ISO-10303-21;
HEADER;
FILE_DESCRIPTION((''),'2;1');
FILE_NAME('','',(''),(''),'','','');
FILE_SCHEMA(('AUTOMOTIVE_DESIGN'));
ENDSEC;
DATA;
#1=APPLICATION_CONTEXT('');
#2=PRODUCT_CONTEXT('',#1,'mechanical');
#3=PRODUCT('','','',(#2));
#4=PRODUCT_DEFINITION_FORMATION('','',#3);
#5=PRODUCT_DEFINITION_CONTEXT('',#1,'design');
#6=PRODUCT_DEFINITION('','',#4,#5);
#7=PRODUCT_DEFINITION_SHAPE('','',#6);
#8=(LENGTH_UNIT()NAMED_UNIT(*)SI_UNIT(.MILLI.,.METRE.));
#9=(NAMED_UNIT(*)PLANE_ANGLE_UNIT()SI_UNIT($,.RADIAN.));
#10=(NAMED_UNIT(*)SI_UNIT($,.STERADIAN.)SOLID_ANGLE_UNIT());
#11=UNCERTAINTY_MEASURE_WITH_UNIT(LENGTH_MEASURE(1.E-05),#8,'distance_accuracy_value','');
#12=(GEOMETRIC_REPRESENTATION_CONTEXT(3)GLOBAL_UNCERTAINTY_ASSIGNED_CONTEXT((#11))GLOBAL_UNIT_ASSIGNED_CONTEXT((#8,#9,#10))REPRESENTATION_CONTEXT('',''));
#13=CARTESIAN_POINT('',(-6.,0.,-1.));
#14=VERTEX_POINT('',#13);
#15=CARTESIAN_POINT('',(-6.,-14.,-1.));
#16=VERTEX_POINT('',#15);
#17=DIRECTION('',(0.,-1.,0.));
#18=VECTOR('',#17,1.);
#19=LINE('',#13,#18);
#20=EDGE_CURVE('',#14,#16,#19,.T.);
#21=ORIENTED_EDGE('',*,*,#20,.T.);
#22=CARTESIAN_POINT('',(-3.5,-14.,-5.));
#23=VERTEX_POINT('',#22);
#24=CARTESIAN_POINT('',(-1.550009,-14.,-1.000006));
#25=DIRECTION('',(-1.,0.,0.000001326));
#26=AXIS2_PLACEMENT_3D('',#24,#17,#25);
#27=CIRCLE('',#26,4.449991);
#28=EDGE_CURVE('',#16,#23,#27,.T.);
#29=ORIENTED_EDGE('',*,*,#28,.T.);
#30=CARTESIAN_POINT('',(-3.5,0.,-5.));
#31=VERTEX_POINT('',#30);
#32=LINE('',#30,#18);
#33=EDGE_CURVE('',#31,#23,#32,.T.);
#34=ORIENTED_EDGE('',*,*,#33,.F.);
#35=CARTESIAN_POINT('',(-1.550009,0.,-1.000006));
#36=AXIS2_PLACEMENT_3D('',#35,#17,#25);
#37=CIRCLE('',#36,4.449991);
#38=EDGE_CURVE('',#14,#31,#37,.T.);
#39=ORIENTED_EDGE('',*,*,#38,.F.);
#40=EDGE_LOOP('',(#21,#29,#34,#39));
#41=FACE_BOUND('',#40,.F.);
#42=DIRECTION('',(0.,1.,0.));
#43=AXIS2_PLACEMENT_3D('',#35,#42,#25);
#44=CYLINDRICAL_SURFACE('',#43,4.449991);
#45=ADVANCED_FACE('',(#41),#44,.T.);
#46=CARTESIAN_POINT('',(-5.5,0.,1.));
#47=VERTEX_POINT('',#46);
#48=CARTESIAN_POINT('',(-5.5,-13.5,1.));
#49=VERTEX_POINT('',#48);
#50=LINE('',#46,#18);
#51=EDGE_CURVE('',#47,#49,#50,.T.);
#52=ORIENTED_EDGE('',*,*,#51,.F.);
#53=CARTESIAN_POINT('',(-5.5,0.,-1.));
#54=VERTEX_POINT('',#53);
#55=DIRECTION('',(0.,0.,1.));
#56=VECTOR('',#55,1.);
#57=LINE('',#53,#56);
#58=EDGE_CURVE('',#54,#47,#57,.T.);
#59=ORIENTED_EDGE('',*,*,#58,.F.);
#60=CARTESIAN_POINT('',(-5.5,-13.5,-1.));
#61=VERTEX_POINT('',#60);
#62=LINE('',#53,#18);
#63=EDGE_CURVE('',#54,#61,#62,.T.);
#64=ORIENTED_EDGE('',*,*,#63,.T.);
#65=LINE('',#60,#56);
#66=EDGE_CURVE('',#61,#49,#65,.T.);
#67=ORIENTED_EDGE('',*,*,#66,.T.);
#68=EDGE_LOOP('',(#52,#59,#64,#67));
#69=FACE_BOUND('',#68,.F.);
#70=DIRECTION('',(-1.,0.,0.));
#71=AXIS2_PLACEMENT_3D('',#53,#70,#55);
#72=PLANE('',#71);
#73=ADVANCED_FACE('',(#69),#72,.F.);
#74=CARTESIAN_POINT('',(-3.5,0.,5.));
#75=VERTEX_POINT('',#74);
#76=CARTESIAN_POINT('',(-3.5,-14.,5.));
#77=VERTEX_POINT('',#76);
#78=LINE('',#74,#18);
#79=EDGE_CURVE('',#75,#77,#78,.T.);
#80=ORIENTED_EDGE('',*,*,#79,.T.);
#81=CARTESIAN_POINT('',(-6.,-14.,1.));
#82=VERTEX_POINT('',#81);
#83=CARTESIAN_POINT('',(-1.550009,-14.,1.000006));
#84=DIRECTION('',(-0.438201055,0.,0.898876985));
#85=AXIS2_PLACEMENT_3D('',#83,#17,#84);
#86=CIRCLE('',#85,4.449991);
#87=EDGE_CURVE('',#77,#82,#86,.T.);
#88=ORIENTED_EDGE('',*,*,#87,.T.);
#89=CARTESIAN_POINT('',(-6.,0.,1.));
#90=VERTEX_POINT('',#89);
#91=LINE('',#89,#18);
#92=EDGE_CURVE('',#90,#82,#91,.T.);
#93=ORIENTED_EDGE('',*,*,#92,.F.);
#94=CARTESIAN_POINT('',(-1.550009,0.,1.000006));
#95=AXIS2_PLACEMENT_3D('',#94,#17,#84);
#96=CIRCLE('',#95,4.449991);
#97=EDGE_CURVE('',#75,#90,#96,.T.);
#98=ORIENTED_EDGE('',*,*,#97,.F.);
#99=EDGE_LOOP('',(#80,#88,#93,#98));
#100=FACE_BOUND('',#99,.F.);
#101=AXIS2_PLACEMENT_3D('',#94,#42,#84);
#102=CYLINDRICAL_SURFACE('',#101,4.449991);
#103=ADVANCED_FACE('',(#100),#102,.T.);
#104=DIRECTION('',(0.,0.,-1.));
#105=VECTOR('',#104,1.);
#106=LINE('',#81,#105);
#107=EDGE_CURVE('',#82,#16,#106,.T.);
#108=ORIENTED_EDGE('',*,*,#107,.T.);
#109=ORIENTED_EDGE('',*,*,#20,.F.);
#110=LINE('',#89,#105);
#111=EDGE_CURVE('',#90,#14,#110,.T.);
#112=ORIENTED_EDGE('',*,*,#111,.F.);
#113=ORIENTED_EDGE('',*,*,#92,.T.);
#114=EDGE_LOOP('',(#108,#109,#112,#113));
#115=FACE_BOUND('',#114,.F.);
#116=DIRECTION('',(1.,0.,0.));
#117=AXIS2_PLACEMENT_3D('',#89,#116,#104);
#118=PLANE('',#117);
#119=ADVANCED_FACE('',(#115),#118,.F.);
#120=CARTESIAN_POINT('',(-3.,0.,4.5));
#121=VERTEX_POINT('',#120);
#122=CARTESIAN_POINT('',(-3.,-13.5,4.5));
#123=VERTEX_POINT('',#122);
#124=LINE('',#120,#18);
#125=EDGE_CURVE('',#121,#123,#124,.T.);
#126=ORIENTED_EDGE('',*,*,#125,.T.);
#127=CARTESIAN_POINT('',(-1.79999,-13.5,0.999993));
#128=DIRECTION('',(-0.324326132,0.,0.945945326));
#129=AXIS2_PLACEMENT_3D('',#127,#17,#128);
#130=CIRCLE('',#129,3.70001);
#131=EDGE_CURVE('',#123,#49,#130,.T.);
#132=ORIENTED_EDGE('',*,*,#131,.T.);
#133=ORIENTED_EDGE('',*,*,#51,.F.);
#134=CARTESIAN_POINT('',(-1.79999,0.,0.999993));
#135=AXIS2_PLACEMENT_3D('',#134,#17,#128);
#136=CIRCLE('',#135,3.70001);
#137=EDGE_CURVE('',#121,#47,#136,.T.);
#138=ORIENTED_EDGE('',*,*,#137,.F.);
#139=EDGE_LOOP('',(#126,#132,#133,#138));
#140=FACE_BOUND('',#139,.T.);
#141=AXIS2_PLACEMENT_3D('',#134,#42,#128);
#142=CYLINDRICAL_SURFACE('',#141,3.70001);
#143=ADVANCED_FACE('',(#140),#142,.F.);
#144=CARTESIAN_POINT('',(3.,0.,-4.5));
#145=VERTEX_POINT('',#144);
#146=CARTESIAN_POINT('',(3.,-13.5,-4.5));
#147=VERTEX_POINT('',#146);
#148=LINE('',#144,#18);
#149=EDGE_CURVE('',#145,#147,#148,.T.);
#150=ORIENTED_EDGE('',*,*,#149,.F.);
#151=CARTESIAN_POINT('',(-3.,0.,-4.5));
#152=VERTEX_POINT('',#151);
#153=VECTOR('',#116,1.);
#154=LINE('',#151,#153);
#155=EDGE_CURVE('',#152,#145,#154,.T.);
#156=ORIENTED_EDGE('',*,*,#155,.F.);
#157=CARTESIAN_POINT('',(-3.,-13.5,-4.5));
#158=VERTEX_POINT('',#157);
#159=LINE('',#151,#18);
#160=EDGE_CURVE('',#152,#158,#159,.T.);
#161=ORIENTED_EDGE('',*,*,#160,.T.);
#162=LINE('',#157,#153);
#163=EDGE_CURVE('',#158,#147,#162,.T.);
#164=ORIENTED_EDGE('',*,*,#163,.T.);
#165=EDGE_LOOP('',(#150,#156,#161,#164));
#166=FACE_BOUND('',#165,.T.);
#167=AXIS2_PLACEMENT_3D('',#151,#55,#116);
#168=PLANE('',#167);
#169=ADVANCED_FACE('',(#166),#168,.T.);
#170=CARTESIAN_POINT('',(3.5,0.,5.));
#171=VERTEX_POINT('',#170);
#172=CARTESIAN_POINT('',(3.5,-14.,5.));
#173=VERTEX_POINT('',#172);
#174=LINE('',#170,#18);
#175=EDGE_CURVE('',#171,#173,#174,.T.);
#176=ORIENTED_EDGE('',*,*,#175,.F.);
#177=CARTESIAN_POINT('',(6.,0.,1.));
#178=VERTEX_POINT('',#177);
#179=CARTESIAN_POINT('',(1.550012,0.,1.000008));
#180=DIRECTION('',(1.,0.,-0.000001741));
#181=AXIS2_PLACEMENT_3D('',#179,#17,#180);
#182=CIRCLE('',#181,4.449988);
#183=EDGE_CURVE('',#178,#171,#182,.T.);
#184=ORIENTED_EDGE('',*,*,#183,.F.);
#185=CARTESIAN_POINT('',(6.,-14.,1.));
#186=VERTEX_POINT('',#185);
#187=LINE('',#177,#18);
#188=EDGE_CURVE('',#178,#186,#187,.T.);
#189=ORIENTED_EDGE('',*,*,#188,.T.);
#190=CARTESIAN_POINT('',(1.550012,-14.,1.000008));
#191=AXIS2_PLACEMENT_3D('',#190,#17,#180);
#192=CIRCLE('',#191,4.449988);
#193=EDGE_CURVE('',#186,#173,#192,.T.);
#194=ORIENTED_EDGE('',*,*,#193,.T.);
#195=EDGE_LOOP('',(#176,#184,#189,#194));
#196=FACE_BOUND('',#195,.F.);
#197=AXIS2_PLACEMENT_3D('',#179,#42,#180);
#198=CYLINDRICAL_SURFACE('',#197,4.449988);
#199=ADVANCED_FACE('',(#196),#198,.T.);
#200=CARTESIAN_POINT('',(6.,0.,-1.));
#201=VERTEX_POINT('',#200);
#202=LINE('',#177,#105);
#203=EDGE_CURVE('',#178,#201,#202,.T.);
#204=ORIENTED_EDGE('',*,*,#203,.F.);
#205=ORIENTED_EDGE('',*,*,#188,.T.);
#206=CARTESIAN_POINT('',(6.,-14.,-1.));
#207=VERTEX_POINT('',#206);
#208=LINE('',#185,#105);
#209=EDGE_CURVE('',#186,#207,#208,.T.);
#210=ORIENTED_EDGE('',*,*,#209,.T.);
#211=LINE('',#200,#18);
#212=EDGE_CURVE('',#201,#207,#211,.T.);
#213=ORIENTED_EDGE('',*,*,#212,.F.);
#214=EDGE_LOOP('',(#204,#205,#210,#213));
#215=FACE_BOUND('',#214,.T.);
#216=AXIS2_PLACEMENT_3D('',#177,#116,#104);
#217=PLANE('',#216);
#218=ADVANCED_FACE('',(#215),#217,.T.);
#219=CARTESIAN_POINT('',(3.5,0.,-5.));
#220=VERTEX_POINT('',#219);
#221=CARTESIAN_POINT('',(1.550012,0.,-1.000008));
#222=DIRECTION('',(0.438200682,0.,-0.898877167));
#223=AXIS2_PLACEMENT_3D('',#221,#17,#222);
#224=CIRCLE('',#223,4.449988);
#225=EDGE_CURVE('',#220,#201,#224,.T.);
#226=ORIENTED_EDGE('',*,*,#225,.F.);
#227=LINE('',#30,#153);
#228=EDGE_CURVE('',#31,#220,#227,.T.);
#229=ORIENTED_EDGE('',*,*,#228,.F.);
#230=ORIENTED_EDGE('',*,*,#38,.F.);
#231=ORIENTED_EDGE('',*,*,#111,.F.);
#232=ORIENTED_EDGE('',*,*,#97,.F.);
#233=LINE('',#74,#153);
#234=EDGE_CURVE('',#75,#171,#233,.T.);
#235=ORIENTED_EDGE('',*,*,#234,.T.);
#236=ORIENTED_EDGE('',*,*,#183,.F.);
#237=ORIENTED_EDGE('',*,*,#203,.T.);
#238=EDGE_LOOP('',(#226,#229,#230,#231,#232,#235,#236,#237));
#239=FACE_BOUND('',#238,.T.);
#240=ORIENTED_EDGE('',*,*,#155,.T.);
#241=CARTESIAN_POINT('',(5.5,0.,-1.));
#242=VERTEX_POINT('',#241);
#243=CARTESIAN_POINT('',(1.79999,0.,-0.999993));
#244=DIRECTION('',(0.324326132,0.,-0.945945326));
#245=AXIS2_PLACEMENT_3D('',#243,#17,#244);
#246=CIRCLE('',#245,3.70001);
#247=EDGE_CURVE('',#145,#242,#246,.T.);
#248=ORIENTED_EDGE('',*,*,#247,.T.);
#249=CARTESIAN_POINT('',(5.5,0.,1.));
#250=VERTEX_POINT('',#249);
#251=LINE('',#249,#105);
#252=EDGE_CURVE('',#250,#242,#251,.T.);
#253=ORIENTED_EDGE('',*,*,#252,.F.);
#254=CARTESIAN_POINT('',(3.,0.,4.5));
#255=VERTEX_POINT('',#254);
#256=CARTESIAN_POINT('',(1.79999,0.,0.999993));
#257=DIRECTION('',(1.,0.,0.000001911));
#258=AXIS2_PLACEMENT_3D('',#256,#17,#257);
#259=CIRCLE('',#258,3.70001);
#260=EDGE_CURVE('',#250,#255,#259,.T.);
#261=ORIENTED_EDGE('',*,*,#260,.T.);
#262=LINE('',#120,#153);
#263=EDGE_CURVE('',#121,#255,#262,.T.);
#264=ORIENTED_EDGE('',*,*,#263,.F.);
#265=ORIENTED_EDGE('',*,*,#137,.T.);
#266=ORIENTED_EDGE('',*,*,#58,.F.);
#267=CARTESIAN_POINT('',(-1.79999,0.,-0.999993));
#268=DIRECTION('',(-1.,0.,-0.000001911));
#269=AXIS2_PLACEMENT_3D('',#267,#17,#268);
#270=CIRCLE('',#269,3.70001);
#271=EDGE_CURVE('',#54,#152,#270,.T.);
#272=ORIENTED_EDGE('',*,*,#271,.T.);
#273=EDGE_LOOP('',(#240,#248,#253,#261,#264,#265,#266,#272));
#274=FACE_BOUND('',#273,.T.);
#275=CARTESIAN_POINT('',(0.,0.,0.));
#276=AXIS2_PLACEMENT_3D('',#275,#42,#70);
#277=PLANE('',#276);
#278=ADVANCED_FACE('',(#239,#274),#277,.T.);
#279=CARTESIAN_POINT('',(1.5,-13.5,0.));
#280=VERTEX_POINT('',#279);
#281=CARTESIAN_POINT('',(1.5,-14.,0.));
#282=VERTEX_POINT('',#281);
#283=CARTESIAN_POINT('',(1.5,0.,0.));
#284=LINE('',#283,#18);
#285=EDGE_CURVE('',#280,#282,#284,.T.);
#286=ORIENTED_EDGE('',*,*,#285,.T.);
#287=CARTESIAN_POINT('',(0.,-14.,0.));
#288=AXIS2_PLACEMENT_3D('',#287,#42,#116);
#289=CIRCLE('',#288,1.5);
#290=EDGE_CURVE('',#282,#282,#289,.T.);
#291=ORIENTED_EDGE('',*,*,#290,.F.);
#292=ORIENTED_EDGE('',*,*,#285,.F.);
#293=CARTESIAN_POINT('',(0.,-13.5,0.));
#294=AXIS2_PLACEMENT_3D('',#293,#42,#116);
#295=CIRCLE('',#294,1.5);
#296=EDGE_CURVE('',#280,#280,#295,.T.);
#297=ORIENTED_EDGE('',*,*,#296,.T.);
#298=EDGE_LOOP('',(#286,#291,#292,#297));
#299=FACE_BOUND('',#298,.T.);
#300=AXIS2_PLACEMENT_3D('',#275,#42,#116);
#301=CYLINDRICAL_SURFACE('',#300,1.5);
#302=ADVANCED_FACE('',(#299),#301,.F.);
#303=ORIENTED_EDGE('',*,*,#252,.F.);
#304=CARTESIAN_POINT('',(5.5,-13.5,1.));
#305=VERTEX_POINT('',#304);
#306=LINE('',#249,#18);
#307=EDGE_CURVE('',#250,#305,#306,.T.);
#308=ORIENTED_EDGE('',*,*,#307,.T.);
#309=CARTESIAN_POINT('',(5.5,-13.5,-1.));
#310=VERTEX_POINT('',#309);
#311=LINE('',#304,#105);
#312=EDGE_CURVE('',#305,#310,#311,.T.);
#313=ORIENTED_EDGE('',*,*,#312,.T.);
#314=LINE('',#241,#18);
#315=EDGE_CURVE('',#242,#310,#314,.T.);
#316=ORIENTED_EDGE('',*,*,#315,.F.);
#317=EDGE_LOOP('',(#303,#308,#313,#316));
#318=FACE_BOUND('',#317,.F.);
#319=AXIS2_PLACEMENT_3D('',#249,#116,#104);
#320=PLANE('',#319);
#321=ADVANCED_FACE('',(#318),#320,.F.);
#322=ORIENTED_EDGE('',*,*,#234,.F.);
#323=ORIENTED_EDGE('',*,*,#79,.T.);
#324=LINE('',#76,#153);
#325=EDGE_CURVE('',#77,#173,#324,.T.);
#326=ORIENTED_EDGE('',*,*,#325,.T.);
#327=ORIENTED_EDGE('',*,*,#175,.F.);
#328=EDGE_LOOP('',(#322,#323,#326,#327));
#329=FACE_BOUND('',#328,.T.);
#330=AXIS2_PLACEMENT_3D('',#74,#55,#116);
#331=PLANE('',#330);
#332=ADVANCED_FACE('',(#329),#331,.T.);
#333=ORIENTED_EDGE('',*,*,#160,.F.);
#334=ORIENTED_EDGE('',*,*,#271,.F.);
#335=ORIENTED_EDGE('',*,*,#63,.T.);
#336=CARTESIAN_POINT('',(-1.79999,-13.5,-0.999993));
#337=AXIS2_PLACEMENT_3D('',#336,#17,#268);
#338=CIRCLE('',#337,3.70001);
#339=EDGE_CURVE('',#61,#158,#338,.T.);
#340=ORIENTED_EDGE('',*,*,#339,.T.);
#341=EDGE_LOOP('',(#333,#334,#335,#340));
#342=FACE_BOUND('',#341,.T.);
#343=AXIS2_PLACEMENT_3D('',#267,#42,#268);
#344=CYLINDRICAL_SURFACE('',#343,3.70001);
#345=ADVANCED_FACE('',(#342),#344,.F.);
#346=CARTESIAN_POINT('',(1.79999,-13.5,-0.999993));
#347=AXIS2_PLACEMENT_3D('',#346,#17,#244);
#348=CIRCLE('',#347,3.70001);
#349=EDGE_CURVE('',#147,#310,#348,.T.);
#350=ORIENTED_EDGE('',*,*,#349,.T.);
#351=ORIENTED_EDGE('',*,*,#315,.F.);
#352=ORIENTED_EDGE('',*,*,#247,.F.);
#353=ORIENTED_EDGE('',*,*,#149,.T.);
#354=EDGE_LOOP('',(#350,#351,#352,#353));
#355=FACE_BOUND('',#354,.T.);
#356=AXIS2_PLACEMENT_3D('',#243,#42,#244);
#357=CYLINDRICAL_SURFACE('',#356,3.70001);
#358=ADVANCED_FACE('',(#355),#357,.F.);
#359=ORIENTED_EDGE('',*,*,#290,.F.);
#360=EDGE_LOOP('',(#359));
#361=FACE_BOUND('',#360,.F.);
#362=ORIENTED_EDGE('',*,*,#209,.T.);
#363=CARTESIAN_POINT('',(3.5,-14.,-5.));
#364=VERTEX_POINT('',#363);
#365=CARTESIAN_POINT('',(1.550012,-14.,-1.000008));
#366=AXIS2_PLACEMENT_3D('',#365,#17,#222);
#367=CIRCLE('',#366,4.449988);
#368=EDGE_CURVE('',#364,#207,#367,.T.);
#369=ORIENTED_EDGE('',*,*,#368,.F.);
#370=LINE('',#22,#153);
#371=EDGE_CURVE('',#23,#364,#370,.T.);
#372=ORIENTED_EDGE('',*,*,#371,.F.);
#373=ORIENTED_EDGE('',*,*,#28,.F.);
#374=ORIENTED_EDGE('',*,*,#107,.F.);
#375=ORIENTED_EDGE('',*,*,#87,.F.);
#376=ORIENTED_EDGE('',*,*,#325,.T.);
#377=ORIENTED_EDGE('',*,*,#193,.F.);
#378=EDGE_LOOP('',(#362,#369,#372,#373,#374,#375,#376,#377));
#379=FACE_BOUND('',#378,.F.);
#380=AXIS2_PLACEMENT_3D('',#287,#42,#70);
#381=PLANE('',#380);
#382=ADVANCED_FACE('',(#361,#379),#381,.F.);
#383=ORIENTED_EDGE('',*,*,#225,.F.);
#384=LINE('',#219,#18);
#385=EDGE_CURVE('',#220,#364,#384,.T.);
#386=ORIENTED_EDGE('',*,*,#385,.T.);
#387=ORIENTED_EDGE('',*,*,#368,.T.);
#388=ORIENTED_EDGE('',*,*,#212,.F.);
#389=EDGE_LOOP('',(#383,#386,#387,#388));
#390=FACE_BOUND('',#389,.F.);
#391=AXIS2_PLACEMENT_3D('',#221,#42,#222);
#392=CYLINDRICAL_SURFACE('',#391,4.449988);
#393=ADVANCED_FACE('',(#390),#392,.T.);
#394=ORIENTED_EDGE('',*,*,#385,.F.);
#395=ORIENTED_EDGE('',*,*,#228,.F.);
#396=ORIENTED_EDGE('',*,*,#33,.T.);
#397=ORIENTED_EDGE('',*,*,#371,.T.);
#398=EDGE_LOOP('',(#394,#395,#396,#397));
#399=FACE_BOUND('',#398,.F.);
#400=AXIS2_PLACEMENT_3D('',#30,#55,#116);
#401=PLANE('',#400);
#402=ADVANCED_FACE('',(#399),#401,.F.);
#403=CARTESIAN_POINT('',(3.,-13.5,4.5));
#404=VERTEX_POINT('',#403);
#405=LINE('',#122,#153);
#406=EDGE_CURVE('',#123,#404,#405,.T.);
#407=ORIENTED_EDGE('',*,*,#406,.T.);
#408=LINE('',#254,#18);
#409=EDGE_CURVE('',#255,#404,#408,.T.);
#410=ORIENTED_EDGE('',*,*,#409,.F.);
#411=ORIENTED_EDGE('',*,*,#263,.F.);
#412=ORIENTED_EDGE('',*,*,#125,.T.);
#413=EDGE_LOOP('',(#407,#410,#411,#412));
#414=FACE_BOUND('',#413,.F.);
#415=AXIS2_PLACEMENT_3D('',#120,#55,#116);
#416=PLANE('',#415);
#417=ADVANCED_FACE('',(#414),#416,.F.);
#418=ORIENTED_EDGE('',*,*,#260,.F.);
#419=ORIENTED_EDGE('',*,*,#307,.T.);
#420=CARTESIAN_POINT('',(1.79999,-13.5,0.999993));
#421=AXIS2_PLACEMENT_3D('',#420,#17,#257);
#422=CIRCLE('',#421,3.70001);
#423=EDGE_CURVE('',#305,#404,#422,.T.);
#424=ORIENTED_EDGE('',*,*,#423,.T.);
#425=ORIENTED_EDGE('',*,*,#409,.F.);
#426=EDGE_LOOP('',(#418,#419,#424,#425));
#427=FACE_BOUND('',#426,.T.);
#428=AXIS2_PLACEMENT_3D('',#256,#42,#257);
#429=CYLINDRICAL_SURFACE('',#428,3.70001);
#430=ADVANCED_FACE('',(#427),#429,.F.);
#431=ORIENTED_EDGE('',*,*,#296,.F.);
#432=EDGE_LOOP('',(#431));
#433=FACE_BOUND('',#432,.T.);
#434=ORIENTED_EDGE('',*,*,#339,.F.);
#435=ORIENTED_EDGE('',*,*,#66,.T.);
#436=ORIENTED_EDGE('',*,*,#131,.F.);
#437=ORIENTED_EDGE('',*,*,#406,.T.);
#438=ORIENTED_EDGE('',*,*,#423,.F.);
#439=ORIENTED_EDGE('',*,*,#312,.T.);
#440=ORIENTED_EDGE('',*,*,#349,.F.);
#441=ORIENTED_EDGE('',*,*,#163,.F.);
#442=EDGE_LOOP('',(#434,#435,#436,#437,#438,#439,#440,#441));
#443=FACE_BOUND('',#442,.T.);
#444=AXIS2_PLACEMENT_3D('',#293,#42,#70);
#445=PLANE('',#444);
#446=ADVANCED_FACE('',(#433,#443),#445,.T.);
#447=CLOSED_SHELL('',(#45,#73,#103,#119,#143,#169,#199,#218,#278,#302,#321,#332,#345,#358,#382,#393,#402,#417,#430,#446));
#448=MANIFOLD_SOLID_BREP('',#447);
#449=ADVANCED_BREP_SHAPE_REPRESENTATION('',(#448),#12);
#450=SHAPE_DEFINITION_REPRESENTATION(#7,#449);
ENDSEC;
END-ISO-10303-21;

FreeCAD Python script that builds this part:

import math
import FreeCAD as App
import Part
import Sketcher
from FreeCAD import Vector

doc = App.newDocument("Part")
body = doc.addObject("PartDesign::Body", "Body")

sketch1 = body.newObject("Sketcher::SketchObject", "Sketch")
sketch1.AttachmentSupport = (doc.getObject("XZ_Plane"), [""])
sketch1.MapMode = "FlatFace"
sketch1.addGeometry([
    Part.LineSegment(Vector(3.5, 5, 0), Vector(-3.5, 5, 0)),
    Part.ArcOfCircle(Part.Circle(Vector(-1.6, 1, 0), Vector(0, 0, 1), 4.4), math.radians(116), math.radians(180)),
    Part.LineSegment(Vector(-6, 1, 0), Vector(-6, -1, 0)),
    Part.ArcOfCircle(Part.Circle(Vector(-1.6, -1, 0), Vector(0, 0, 1), 4.4), math.radians(180), math.radians(244)),
    Part.LineSegment(Vector(-3.5, -5, 0), Vector(3.5, -5, 0)),
    Part.ArcOfCircle(Part.Circle(Vector(1.6, -1, 0), Vector(0, 0, 1), 4.4), math.radians(-64), math.radians(0)),
    Part.LineSegment(Vector(6, -1, 0), Vector(6, 1, 0)),
    Part.ArcOfCircle(Part.Circle(Vector(1.6, 1, 0), Vector(0, 0, 1), 4.4), math.radians(0), math.radians(64)),
], False)
sketch1.addConstraint([
    Sketcher.Constraint("Coincident", 0, 2, 1, 1),
    Sketcher.Constraint("Tangent", 1, 2, 2, 1),
    Sketcher.Constraint("Tangent", 2, 2, 3, 1),
    Sketcher.Constraint("Coincident", 3, 2, 4, 1),
    Sketcher.Constraint("Coincident", 4, 2, 5, 1),
    Sketcher.Constraint("Tangent", 5, 2, 6, 1),
    Sketcher.Constraint("Tangent", 6, 2, 7, 1),
    Sketcher.Constraint("Coincident", 7, 2, 0, 1),
    Sketcher.Constraint("Horizontal", 0),
    Sketcher.Constraint("Vertical", 2),
    Sketcher.Constraint("Horizontal", 4),
    Sketcher.Constraint("Vertical", 6),
    Sketcher.Constraint("Equal", 1, 3),
    Sketcher.Constraint("Equal", 5, 7),
    Sketcher.Constraint("Symmetric", 1, 3, 5, 3, -1, 1),
    Sketcher.Constraint("Symmetric", 0, 2, 4, 2, -1, 1),
    Sketcher.Constraint("Horizontal", 3, 3, 5, 3),
    Sketcher.Constraint("Horizontal", 1, 3, 7, 3),
    Sketcher.Constraint("DistanceX", 0, 2, 0, 1, 7.0),
    Sketcher.Constraint("DistanceY", 2, 2, 2, 1, 2.0),
    Sketcher.Constraint("DistanceY", -1, 1, 0, 2, 5.0),
    Sketcher.Constraint("DistanceX", 1, 2, -1, 1, 6.0),
])
pad1 = body.newObject("PartDesign::Pad", "Pad")
pad1.Profile = sketch1
pad1.Length = 14

sketch2 = body.newObject("Sketcher::SketchObject", "Sketch001")
sketch2.AttachmentSupport = (doc.getObject("XZ_Plane"), [""])
sketch2.MapMode = "FlatFace"
sketch2.addGeometry([
    Part.LineSegment(Vector(3, 4.5, 0), Vector(-3, 4.5, 0)),
    Part.ArcOfCircle(Part.Circle(Vector(-1.8, 1, 0), Vector(0, 0, 1), 3.7), math.radians(109), math.radians(180)),
    Part.LineSegment(Vector(-5.5, 1, 0), Vector(-5.5, -1, 0)),
    Part.ArcOfCircle(Part.Circle(Vector(-1.8, -1, 0), Vector(0, 0, 1), 3.7), math.radians(-180), math.radians(-109)),
    Part.LineSegment(Vector(-3, -4.5, 0), Vector(3, -4.5, 0)),
    Part.ArcOfCircle(Part.Circle(Vector(1.8, -1, 0), Vector(0, 0, 1), 3.7), math.radians(-71), math.radians(0)),
    Part.LineSegment(Vector(5.5, -1, 0), Vector(5.5, 1, 0)),
    Part.ArcOfCircle(Part.Circle(Vector(1.8, 1, 0), Vector(0, 0, 1), 3.7), math.radians(0), math.radians(71)),
], False)
sketch2.addConstraint([
    Sketcher.Constraint("Coincident", 0, 2, 1, 1),
    Sketcher.Constraint("Tangent", 1, 2, 2, 1),
    Sketcher.Constraint("Tangent", 2, 2, 3, 1),
    Sketcher.Constraint("Coincident", 3, 2, 4, 1),
    Sketcher.Constraint("Coincident", 4, 2, 5, 1),
    Sketcher.Constraint("Tangent", 5, 2, 6, 1),
    Sketcher.Constraint("Tangent", 6, 2, 7, 1),
    Sketcher.Constraint("Coincident", 7, 2, 0, 1),
    Sketcher.Constraint("Horizontal", 0),
    Sketcher.Constraint("Vertical", 2),
    Sketcher.Constraint("Horizontal", 4),
    Sketcher.Constraint("Vertical", 6),
    Sketcher.Constraint("Equal", 1, 3),
    Sketcher.Constraint("Equal", 3, 5),
    Sketcher.Constraint("Equal", 5, 7),
    Sketcher.Constraint("Symmetric", 1, 3, 5, 3, -1, 1),
    Sketcher.Constraint("Symmetric", 3, 2, 7, 2, -1, 1),
    Sketcher.Constraint("Horizontal", 3, 3, 5, 3),
    Sketcher.Constraint("DistanceX", 0, 2, 0, 1, 6.0),
    Sketcher.Constraint("DistanceY", 2, 2, 2, 1, 2.0),
    Sketcher.Constraint("DistanceY", -1, 1, 0, 2, 4.5),
    Sketcher.Constraint("DistanceX", 1, 2, -1, 1, 5.5),
])
pocket1 = body.newObject("PartDesign::Pocket", "Pocket")
pocket1.Profile = sketch2
pocket1.Length = 13.5
pocket1.Reversed = True

sketch3 = body.newObject("Sketcher::SketchObject", "Sketch002")
sketch3.AttachmentSupport = (doc.getObject("XZ_Plane"), [""])
sketch3.MapMode = "FlatFace"
sketch3.addGeometry(Part.Circle(Vector(0, 0, 0), Vector(0, 0, 1), 1.5), False)
sketch3.addConstraint([
    Sketcher.Constraint("Coincident", 0, 3, -1, 1),
    Sketcher.Constraint("Diameter", 0, 3.0),
])
pocket2 = body.newObject("PartDesign::Pocket", "Pocket001")
pocket2.Profile = sketch3
pocket2.Type = "ThroughAll"
pocket2.Reversed = True

doc.recompute()
